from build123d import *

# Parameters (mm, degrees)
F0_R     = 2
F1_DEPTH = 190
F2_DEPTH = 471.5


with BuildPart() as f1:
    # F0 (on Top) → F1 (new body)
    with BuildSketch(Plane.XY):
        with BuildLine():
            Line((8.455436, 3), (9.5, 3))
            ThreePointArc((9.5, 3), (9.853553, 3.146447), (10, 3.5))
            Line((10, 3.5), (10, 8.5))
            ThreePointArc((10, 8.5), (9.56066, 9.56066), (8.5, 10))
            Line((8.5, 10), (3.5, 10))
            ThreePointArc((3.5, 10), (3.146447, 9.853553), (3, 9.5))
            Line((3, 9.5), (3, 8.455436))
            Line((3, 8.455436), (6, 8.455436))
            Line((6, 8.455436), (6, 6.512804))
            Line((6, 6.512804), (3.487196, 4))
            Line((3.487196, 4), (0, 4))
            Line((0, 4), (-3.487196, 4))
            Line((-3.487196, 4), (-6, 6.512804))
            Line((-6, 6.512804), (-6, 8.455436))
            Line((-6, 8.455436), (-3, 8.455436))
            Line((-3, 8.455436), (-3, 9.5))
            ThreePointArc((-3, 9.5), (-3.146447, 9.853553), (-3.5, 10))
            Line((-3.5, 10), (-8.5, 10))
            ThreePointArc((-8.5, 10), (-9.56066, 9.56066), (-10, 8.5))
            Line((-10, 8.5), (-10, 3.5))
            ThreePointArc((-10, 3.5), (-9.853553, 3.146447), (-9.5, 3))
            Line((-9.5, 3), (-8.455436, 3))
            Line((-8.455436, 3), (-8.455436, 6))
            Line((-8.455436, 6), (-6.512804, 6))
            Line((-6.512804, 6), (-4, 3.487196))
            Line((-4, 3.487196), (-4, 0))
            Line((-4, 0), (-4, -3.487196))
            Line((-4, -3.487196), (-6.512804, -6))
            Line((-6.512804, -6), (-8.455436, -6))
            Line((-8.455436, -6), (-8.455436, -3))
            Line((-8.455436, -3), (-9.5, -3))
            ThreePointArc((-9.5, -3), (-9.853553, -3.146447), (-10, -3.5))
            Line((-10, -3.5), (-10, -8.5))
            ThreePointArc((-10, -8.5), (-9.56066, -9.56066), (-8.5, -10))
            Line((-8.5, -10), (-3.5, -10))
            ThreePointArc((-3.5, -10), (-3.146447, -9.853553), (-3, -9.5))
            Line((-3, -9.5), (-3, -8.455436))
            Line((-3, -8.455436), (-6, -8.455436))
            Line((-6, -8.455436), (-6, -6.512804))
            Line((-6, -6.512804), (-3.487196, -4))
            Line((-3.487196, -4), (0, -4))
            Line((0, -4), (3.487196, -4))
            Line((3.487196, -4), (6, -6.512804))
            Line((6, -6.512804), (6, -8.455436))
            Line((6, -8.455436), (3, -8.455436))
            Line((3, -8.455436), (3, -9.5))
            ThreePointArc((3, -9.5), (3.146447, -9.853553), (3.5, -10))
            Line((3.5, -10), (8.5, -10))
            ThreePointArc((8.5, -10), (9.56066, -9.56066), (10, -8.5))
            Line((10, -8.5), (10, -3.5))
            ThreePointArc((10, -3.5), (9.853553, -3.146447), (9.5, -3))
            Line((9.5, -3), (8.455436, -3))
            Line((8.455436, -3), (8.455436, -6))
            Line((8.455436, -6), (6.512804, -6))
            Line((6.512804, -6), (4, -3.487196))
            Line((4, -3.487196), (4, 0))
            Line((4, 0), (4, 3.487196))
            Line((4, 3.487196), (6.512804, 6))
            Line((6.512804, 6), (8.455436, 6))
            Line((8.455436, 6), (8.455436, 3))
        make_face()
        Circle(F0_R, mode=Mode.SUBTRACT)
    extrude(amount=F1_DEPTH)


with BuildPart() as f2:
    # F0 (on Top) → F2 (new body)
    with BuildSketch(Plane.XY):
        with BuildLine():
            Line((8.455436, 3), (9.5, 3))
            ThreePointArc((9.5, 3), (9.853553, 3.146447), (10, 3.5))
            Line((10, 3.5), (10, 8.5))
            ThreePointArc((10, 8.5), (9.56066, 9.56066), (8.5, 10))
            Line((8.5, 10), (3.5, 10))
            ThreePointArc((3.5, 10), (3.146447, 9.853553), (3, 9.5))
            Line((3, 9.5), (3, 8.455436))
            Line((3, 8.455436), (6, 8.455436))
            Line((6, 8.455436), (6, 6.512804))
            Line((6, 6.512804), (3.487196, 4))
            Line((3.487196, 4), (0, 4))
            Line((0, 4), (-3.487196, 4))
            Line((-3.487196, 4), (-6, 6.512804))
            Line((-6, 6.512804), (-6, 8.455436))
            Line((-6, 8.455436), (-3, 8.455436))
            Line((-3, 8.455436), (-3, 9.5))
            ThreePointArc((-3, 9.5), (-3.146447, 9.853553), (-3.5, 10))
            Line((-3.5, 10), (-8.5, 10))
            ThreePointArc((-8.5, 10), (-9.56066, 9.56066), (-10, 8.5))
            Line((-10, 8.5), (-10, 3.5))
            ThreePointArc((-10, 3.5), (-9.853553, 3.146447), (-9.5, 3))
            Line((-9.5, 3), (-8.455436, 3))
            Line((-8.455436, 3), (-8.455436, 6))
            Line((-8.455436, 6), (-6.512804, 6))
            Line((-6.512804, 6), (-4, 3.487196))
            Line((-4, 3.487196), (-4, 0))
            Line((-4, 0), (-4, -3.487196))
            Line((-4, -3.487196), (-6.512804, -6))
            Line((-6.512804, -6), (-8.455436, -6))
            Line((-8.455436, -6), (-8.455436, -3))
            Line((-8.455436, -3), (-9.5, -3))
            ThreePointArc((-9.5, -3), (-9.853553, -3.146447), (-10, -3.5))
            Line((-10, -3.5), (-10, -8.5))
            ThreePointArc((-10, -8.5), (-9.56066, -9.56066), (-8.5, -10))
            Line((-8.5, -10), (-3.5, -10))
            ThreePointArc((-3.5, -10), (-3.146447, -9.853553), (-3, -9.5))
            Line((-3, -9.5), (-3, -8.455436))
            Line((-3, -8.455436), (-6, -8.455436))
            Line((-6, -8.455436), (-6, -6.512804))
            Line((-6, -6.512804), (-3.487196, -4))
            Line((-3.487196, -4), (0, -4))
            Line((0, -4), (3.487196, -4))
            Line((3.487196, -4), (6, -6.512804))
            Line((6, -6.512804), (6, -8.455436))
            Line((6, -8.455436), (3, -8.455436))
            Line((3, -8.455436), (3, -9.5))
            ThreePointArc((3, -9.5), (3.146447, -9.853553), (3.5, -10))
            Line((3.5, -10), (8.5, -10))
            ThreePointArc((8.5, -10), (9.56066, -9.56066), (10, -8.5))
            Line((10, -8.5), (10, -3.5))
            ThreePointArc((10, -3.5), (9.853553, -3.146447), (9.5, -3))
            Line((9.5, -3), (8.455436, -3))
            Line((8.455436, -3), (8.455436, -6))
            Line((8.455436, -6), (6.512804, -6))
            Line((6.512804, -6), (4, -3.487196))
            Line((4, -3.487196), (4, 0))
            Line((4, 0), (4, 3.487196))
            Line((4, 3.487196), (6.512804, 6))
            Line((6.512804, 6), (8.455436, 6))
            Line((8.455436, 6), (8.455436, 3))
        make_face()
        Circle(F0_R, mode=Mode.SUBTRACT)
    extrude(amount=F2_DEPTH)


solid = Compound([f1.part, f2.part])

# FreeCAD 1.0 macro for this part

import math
import FreeCAD as App
import Part
import Sketcher
from FreeCAD import Vector

doc = App.newDocument("Part")
body = doc.addObject("PartDesign::Body", "Body")

sketch1 = body.newObject("Sketcher::SketchObject", "Sketch")
sketch1.AttachmentSupport = (doc.getObject("XY_Plane"), [""])
sketch1.MapMode = "FlatFace"
sketch1.addGeometry(Part.LineSegment(Vector(8.5, 3, 0), Vector(9.5, 3, 0)), False)
sketch1.addGeometry(Part.ArcOfCircle(Part.Circle(Vector(9.5, 3.5, 0), Vector(0, 0, 1), 0.5), math.radians(-90), math.radians(0)), False)
sketch1.addGeometry(Part.LineSegment(Vector(10, 3.5, 0), Vector(10, 8.5, 0)), False)
sketch1.addGeometry(Part.ArcOfCircle(Part.Circle(Vector(8.5, 8.5, 0), Vector(0, 0, 1), 1.5), math.radians(0), math.radians(90)), False)
sketch1.addGeometry(Part.LineSegment(Vector(8.5, 10, 0), Vector(3.5, 10, 0)), False)
sketch1.addGeometry(Part.ArcOfCircle(Part.Circle(Vector(3.5, 9.5, 0), Vector(0, 0, 1), 0.5), math.radians(90), math.radians(180)), False)
sketch1.addGeometry(Part.LineSegment(Vector(3, 9.5, 0), Vector(3, 8.5, 0)), False)
sketch1.addGeometry(Part.LineSegment(Vector(3, 8.5, 0), Vector(6, 8.5, 0)), False)
sketch1.addGeometry(Part.LineSegment(Vector(6, 8.5, 0), Vector(6, 6.5, 0)), False)
sketch1.addGeometry(Part.LineSegment(Vector(6, 6.5, 0), Vector(3.5, 4, 0)), False)
sketch1.addGeometry(Part.LineSegment(Vector(3.5, 4, 0), Vector(-3.5, 4, 0)), False)
sketch1.addGeometry(Part.LineSegment(Vector(-3.5, 4, 0), Vector(-6, 6.5, 0)), False)
sketch1.addGeometry(Part.LineSegment(Vector(-6, 6.5, 0), Vector(-6, 8.5, 0)), False)
sketch1.addGeometry(Part.LineSegment(Vector(-6, 8.5, 0), Vector(-3, 8.5, 0)), False)
sketch1.addGeometry(Part.LineSegment(Vector(-3, 8.5, 0), Vector(-3, 9.5, 0)), False)
sketch1.addGeometry(Part.ArcOfCircle(Part.Circle(Vector(-3.5, 9.5, 0), Vector(0, 0, 1), 0.5), math.radians(0), math.radians(90)), False)
sketch1.addGeometry(Part.LineSegment(Vector(-3.5, 10, 0), Vector(-8.5, 10, 0)), False)
sketch1.addGeometry(Part.ArcOfCircle(Part.Circle(Vector(-8.5, 8.5, 0), Vector(0, 0, 1), 1.5), math.radians(90), math.radians(180)), False)
sketch1.addGeometry(Part.LineSegment(Vector(-10, 8.5, 0), Vector(-10, 3.5, 0)), False)
sketch1.addGeometry(Part.ArcOfCircle(Part.Circle(Vector(-9.5, 3.5, 0), Vector(0, 0, 1), 0.5), math.radians(-180), math.radians(-90)), False)
sketch1.addGeometry(Part.LineSegment(Vector(-9.5, 3, 0), Vector(-8.5, 3, 0)), False)
sketch1.addGeometry(Part.LineSegment(Vector(-8.5, 3, 0), Vector(-8.5, 6, 0)), False)
sketch1.addGeometry(Part.LineSegment(Vector(-8.5, 6, 0), Vector(-6.5, 6, 0)), False)
sketch1.addGeometry(Part.LineSegment(Vector(-6.5, 6, 0), Vector(-4, 3.5, 0)), False)
sketch1.addGeometry(Part.LineSegment(Vector(-4, 3.5, 0), Vector(-4, -3.5, 0)), False)
sketch1.addGeometry(Part.LineSegment(Vector(-4, -3.5, 0), Vector(-6.5, -6, 0)), False)
sketch1.addGeometry(Part.LineSegment(Vector(-6.5, -6, 0), Vector(-8.5, -6, 0)), False)
sketch1.addGeometry(Part.LineSegment(Vector(-8.5, -6, 0), Vector(-8.5, -3, 0)), False)
sketch1.addGeometry(Part.LineSegment(Vector(-8.5, -3, 0), Vector(-9.5, -3, 0)), False)
sketch1.addGeometry(Part.ArcOfCircle(Part.Circle(Vector(-9.5, -3.5, 0), Vector(0, 0, 1), 0.5), math.radians(90), math.radians(180)), False)
sketch1.addGeometry(Part.LineSegment(Vector(-10, -3.5, 0), Vector(-10, -8.5, 0)), False)
sketch1.addGeometry(Part.ArcOfCircle(Part.Circle(Vector(-8.5, -8.5, 0), Vector(0, 0, 1), 1.5), math.radians(-180), math.radians(-90)), False)
sketch1.addGeometry(Part.LineSegment(Vector(-8.5, -10, 0), Vector(-3.5, -10, 0)), False)
sketch1.addGeometry(Part.ArcOfCircle(Part.Circle(Vector(-3.5, -9.5, 0), Vector(0, 0, 1), 0.5), math.radians(-90), math.radians(0)), False)
sketch1.addGeometry(Part.LineSegment(Vector(-3, -9.5, 0), Vector(-3, -8.5, 0)), False)
sketch1.addGeometry(Part.LineSegment(Vector(-3, -8.5, 0), Vector(-6, -8.5, 0)), False)
sketch1.addGeometry(Part.LineSegment(Vector(-6, -8.5, 0), Vector(-6, -6.5, 0)), False)
sketch1.addGeometry(Part.LineSegment(Vector(-6, -6.5, 0), Vector(-3.5, -4, 0)), False)
sketch1.addGeometry(Part.LineSegment(Vector(-3.5, -4, 0), Vector(3.5, -4, 0)), False)
sketch1.addGeometry(Part.LineSegment(Vector(3.5, -4, 0), Vector(6, -6.5, 0)), False)
sketch1.addGeometry(Part.LineSegment(Vector(6, -6.5, 0), Vector(6, -8.5, 0)), False)
sketch1.addGeometry(Part.LineSegment(Vector(6, -8.5, 0), Vector(3, -8.5, 0)), False)
sketch1.addGeometry(Part.LineSegment(Vector(3, -8.5, 0), Vector(3, -9.5, 0)), False)
sketch1.addGeometry(Part.ArcOfCircle(Part.Circle(Vector(3.5, -9.5, 0), Vector(0, 0, 1), 0.5), math.radians(-180), math.radians(-90)), False)
sketch1.addGeometry(Part.LineSegment(Vector(3.5, -10, 0), Vector(8.5, -10, 0)), False)
sketch1.addGeometry(Part.ArcOfCircle(Part.Circle(Vector(8.5, -8.5, 0), Vector(0, 0, 1), 1.5), math.radians(-90), math.radians(0)), False)
sketch1.addGeometry(Part.LineSegment(Vector(10, -8.5, 0), Vector(10, -3.5, 0)), False)
sketch1.addGeometry(Part.ArcOfCircle(Part.Circle(Vector(9.5, -3.5, 0), Vector(0, 0, 1), 0.5), math.radians(0), math.radians(90)), False)
sketch1.addGeometry(Part.LineSegment(Vector(9.5, -3, 0), Vector(8.5, -3, 0)), False)
sketch1.addGeometry(Part.LineSegment(Vector(8.5, -3, 0), Vector(8.5, -6, 0)), False)
sketch1.addGeometry(Part.LineSegment(Vector(8.5, -6, 0), Vector(6.5, -6, 0)), False)
sketch1.addGeometry(Part.LineSegment(Vector(6.5, -6, 0), Vector(4, -3.5, 0)), False)
sketch1.addGeometry(Part.LineSegment(Vector(4, -3.5, 0), Vector(4, 3.5, 0)), False)
sketch1.addGeometry(Part.LineSegment(Vector(4, 3.5, 0), Vector(6.5, 6, 0)), False)
sketch1.addGeometry(Part.LineSegment(Vector(6.5, 6, 0), Vector(8.5, 6, 0)), False)
sketch1.addGeometry(Part.LineSegment(Vector(8.5, 6, 0), Vector(8.5, 3, 0)), False)
sketch1.addGeometry(Part.Circle(Vector(0, 0, 0), Vector(0, 0, 1), 2), False)
sketch1.addConstraint(Sketcher.Constraint("Coincident", 0, 2, 1, 1))
sketch1.addConstraint(Sketcher.Constraint("Coincident", 1, 2, 2, 1))
sketch1.addConstraint(Sketcher.Constraint("Tangent", 2, 2, 3, 1))
sketch1.addConstraint(Sketcher.Constraint("Tangent", 3, 2, 4, 1))
sketch1.addConstraint(Sketcher.Constraint("Coincident", 4, 2, 5, 1))
sketch1.addConstraint(Sketcher.Constraint("Coincident", 5, 2, 6, 1))
sketch1.addConstraint(Sketcher.Constraint("Coincident", 6, 2, 7, 1))
sketch1.addConstraint(Sketcher.Constraint("Coincident", 7, 2, 8, 1))
sketch1.addConstraint(Sketcher.Constraint("Coincident", 8, 2, 9, 1))
sketch1.addConstraint(Sketcher.Constraint("Coincident", 9, 2, 10, 1))
sketch1.addConstraint(Sketcher.Constraint("Coincident", 10, 2, 11, 1))
sketch1.addConstraint(Sketcher.Constraint("Coincident", 11, 2, 12, 1))
sketch1.addConstraint(Sketcher.Constraint("Coincident", 12, 2, 13, 1))
sketch1.addConstraint(Sketcher.Constraint("Coincident", 13, 2, 14, 1))
sketch1.addConstraint(Sketcher.Constraint("Coincident", 14, 2, 15, 1))
sketch1.addConstraint(Sketcher.Constraint("Coincident", 15, 2, 16, 1))
sketch1.addConstraint(Sketcher.Constraint("Tangent", 16, 2, 17, 1))
sketch1.addConstraint(Sketcher.Constraint("Tangent", 17, 2, 18, 1))
sketch1.addConstraint(Sketcher.Constraint("Coincident", 18, 2, 19, 1))
sketch1.addConstraint(Sketcher.Constraint("Coincident", 19, 2, 20, 1))
sketch1.addConstraint(Sketcher.Constraint("Coincident", 20, 2, 21, 1))
sketch1.addConstraint(Sketcher.Constraint("Coincident", 21, 2, 22, 1))
sketch1.addConstraint(Sketcher.Constraint("Coincident", 22, 2, 23, 1))
sketch1.addConstraint(Sketcher.Constraint("Coincident", 23, 2, 24, 1))
sketch1.addConstraint(Sketcher.Constraint("Coincident", 24, 2, 25, 1))
sketch1.addConstraint(Sketcher.Constraint("Coincident", 25, 2, 26, 1))
sketch1.addConstraint(Sketcher.Constraint("Coincident", 26, 2, 27, 1))
sketch1.addConstraint(Sketcher.Constraint("Coincident", 27, 2, 28, 1))
sketch1.addConstraint(Sketcher.Constraint("Coincident", 28, 2, 29, 1))
sketch1.addConstraint(Sketcher.Constraint("Coincident", 29, 2, 30, 1))
sketch1.addConstraint(Sketcher.Constraint("Tangent", 30, 2, 31, 1))
sketch1.addConstraint(Sketcher.Constraint("Tangent", 31, 2, 32, 1))
sketch1.addConstraint(Sketcher.Constraint("Coincident", 32, 2, 33, 1))
sketch1.addConstraint(Sketcher.Constraint("Coincident", 33, 2, 34, 1))
sketch1.addConstraint(Sketcher.Constraint("Coincident", 34, 2, 35, 1))
sketch1.addConstraint(Sketcher.Constraint("Coincident", 35, 2, 36, 1))
sketch1.addConstraint(Sketcher.Constraint("Coincident", 36, 2, 37, 1))
sketch1.addConstraint(Sketcher.Constraint("Coincident", 37, 2, 38, 1))
sketch1.addConstraint(Sketcher.Constraint("Coincident", 38, 2, 39, 1))
sketch1.addConstraint(Sketcher.Constraint("Coincident", 39, 2, 40, 1))
sketch1.addConstraint(Sketcher.Constraint("Coincident", 40, 2, 41, 1))
sketch1.addConstraint(Sketcher.Constraint("Coincident", 41, 2, 42, 1))
sketch1.addConstraint(Sketcher.Constraint("Coincident", 42, 2, 43, 1))
sketch1.addConstraint(Sketcher.Constraint("Coincident", 43, 2, 44, 1))
sketch1.addConstraint(Sketcher.Constraint("Tangent", 44, 2, 45, 1))
sketch1.addConstraint(Sketcher.Constraint("Tangent", 45, 2, 46, 1))
sketch1.addConstraint(Sketcher.Constraint("Coincident", 46, 2, 47, 1))
sketch1.addConstraint(Sketcher.Constraint("Coincident", 47, 2, 48, 1))
sketch1.addConstraint(Sketcher.Constraint("Coincident", 48, 2, 49, 1))
sketch1.addConstraint(Sketcher.Constraint("Coincident", 49, 2, 50, 1))
sketch1.addConstraint(Sketcher.Constraint("Coincident", 50, 2, 51, 1))
sketch1.addConstraint(Sketcher.Constraint("Coincident", 51, 2, 52, 1))
sketch1.addConstraint(Sketcher.Constraint("Coincident", 52, 2, 53, 1))
sketch1.addConstraint(Sketcher.Constraint("Coincident", 53, 2, 54, 1))
sketch1.addConstraint(Sketcher.Constraint("Coincident", 54, 2, 55, 1))
sketch1.addConstraint(Sketcher.Constraint("Coincident", 55, 2, 0, 1))
sketch1.addConstraint(Sketcher.Constraint("Horizontal", 0))
sketch1.addConstraint(Sketcher.Constraint("Vertical", 2))
sketch1.addConstraint(Sketcher.Constraint("Horizontal", 4))
sketch1.addConstraint(Sketcher.Constraint("Vertical", 6))
sketch1.addConstraint(Sketcher.Constraint("Horizontal", 7))
sketch1.addConstraint(Sketcher.Constraint("Vertical", 8))
sketch1.addConstraint(Sketcher.Constraint("Horizontal", 10))
sketch1.addConstraint(Sketcher.Constraint("Vertical", 12))
sketch1.addConstraint(Sketcher.Constraint("Horizontal", 13))
sketch1.addConstraint(Sketcher.Constraint("Vertical", 14))
sketch1.addConstraint(Sketcher.Constraint("Horizontal", 16))
sketch1.addConstraint(Sketcher.Constraint("Vertical", 18))
sketch1.addConstraint(Sketcher.Constraint("Horizontal", 20))
sketch1.addConstraint(Sketcher.Constraint("Vertical", 21))
sketch1.addConstraint(Sketcher.Constraint("Horizontal", 22))
sketch1.addConstraint(Sketcher.Constraint("Vertical", 24))
sketch1.addConstraint(Sketcher.Constraint("Horizontal", 26))
sketch1.addConstraint(Sketcher.Constraint("Vertical", 27))
sketch1.addConstraint(Sketcher.Constraint("Horizontal", 28))
sketch1.addConstraint(Sketcher.Constraint("Vertical", 30))
sketch1.addConstraint(Sketcher.Constraint("Horizontal", 32))
sketch1.addConstraint(Sketcher.Constraint("Vertical", 34))
sketch1.addConstraint(Sketcher.Constraint("Horizontal", 35))
sketch1.addConstraint(Sketcher.Constraint("Vertical", 36))
sketch1.addConstraint(Sketcher.Constraint("Horizontal", 38))
sketch1.addConstraint(Sketcher.Constraint("Vertical", 40))
sketch1.addConstraint(Sketcher.Constraint("Horizontal", 41))
sketch1.addConstraint(Sketcher.Constraint("Vertical", 42))
sketch1.addConstraint(Sketcher.Constraint("Horizontal", 44))
sketch1.addConstraint(Sketcher.Constraint("Vertical", 46))
sketch1.addConstraint(Sketcher.Constraint("Horizontal", 48))
sketch1.addConstraint(Sketcher.Constraint("Vertical", 49))
sketch1.addConstraint(Sketcher.Constraint("Horizontal", 50))
sketch1.addConstraint(Sketcher.Constraint("Vertical", 52))
sketch1.addConstraint(Sketcher.Constraint("Horizontal", 54))
sketch1.addConstraint(Sketcher.Constraint("Vertical", 55))
sketch1.addConstraint(Sketcher.Constraint("Coincident", 56, 3, -1, 1))
sketch1.addConstraint(Sketcher.Constraint("Equal", 1, 5))
sketch1.addConstraint(Sketcher.Constraint("Equal", 5, 15))
sketch1.addConstraint(Sketcher.Constraint("Equal", 3, 17))
sketch1.addConstraint(Sketcher.Constraint("Equal", 15, 19))
sketch1.addConstraint(Sketcher.Constraint("Equal", 19, 29))
sketch1.addConstraint(Sketcher.Constraint("Equal", 17, 31))
sketch1.addConstraint(Sketcher.Constraint("Equal", 29, 33))
sketch1.addConstraint(Sketcher.Constraint("Equal", 33, 43))
sketch1.addConstraint(Sketcher.Constraint("Equal", 31, 45))
sketch1.addConstraint(Sketcher.Constraint("Equal", 43, 47))
sketch1.addConstraint(Sketcher.Constraint("Symmetric", 1, 3, 29, 3, -1, 1))
sketch1.addConstraint(Sketcher.Constraint("Symmetric", 5, 3, 33, 3, -1, 1))
sketch1.addConstraint(Sketcher.Constraint("Symmetric", 15, 3, 43, 3, -1, 1))
sketch1.addConstraint(Sketcher.Constraint("Symmetric", 19, 3, 47, 3, -1, 1))
sketch1.addConstraint(Sketcher.Constraint("Symmetric", 7, 2, 35, 2, -1, 1))
sketch1.addConstraint(Sketcher.Constraint("Symmetric", 9, 2, 37, 2, -1, 1))
sketch1.addConstraint(Sketcher.Constraint("Symmetric", 11, 2, 39, 2, -1, 1))
sketch1.addConstraint(Sketcher.Constraint("Symmetric", 21, 2, 49, 2, -1, 1))
sketch1.addConstraint(Sketcher.Constraint("Symmetric", 23, 2, 51, 2, -1, 1))
sketch1.addConstraint(Sketcher.Constraint("Symmetric", 25, 2, 53, 2, -1, 1))
sketch1.addConstraint(Sketcher.Constraint("Symmetric", 5, 3, 15, 3, -2))
sketch1.addConstraint(Sketcher.Constraint("Symmetric", 1, 3, 19, 3, -2))
sketch1.addConstraint(Sketcher.Constraint("Symmetric", 8, 2, 11, 2, -2))
sketch1.addConstraint(Sketcher.Constraint("Symmetric", 26, 2, 49, 2, -2))
sketch1.addConstraint(Sketcher.Constraint("Perpendicular", 9, 11))
sketch1.addConstraint(Sketcher.Constraint("Parallel", 11, 23))
sketch1.addConstraint(Sketcher.Constraint("Perpendicular", 23, 25))
sketch1.addConstraint(Sketcher.Constraint("Parallel", 25, 37))
sketch1.addConstraint(Sketcher.Constraint("Perpendicular", 37, 39))
sketch1.addConstraint(Sketcher.Constraint("Parallel", 39, 51))
sketch1.addConstraint(Sketcher.Constraint("Perpendicular", 51, 53))
sketch1.addConstraint(Sketcher.Constraint("Horizontal", 19, 3, 1, 2))
sketch1.addConstraint(Sketcher.Constraint("Horizontal", 15, 3, 5, 2))
sketch1.addConstraint(Sketcher.Constraint("Horizontal", 7, 2, 12, 2))
sketch1.addConstraint(Sketcher.Constraint("Horizontal", 5, 2, 14, 2))
sketch1.addConstraint(Sketcher.Constraint("Horizontal", 1, 2, 18, 2))
sketch1.addConstraint(Sketcher.Constraint("Horizontal", 47, 3, 29, 2))
sketch1.addConstraint(Sketcher.Constraint("Horizontal", 43, 3, 33, 2))
sketch1.addConstraint(Sketcher.Constraint("Horizontal", 35, 2, 40, 2))
sketch1.addConstraint(Sketcher.Constraint("Horizontal", 33, 2, 42, 2))
sketch1.addConstraint(Sketcher.Constraint("Horizontal", 29, 2, 46, 2))
sketch1.addConstraint(Sketcher.Constraint("Horizontal", 24, 2, 51, 2))
sketch1.addConstraint(Sketcher.Constraint("Vertical", 47, 3, 0, 2))
sketch1.addConstraint(Sketcher.Constraint("Vertical", 43, 3, 4, 2))
sketch1.addConstraint(Sketcher.Constraint("Vertical", 33, 3, 15, 2))
sketch1.addConstraint(Sketcher.Constraint("Vertical", 29, 3, 19, 2))
sketch1.addConstraint(Sketcher.Constraint("Vertical", 22, 2, 25, 2))
sketch1.addConstraint(Sketcher.Constraint("Vertical", 19, 2, 28, 2))
sketch1.addConstraint(Sketcher.Constraint("Vertical", 15, 2, 32, 2))
sketch1.addConstraint(Sketcher.Constraint("Vertical", 4, 2, 43, 2))
sketch1.addConstraint(Sketcher.Constraint("Vertical", 0, 2, 47, 2))
sketch1.addConstraint(Sketcher.Constraint("Vertical", 49, 2, 54, 2))
sketch1.addConstraint(Sketcher.Constraint("Equal", 44, 2))
sketch1.addConstraint(Sketcher.Constraint("Equal", 48, 6))
sketch1.addConstraint(Sketcher.Constraint("Equal", 54, 8))
sketch1.addConstraint(Sketcher.Constraint("Equal", 41, 21))
sketch1.addConstraint(Sketcher.Constraint("Equal", 38, 24))
sketch1.addConstraint(Sketcher.Constraint("Equal", 11, 23))
sketch1.addConstraint(Sketcher.Constraint("Diameter", 56, 4.0))
sketch1.addConstraint(Sketcher.Constraint("Radius", 1, 0.500001))
sketch1.addConstraint(Sketcher.Constraint("Radius", 3, 1.500001))
sketch1.addConstraint(Sketcher.Constraint("DistanceX", 4, 2, 4, 1, 5.0))
sketch1.addConstraint(Sketcher.Constraint("DistanceX", 7, 1, 7, 2, 3.0))
sketch1.addConstraint(Sketcher.Constraint("DistanceY", -1, 1, 0, 2, 3.0))
sketch1.addConstraint(Sketcher.Constraint("DistanceY", -1, 1, 9, 2, 4.0))
sketch1.addConstraint(Sketcher.Constraint("Distance", 9, 3.553641))
sketch1.addConstraint(Sketcher.Constraint("DistanceX", 0, 1, 0, 2, 1.044564))
pad1 = body.newObject("PartDesign::Pad", "Pad")
pad1.Profile = sketch1
pad1.Length = 190
body2 = doc.addObject("PartDesign::Body", "Body001")

sketch2 = body2.newObject("Sketcher::SketchObject", "Sketch001")
sketch2.AttachmentSupport = (doc.getObject("XY_Plane001"), [""])
sketch2.MapMode = "FlatFace"
sketch2.addGeometry(Part.LineSegment(Vector(8.5, 3, 0), Vector(9.5, 3, 0)), False)
sketch2.addGeometry(Part.ArcOfCircle(Part.Circle(Vector(9.5, 3.5, 0), Vector(0, 0, 1), 0.5), math.radians(-90), math.radians(0)), False)
sketch2.addGeometry(Part.LineSegment(Vector(10, 3.5, 0), Vector(10, 8.5, 0)), False)
sketch2.addGeometry(Part.ArcOfCircle(Part.Circle(Vector(8.5, 8.5, 0), Vector(0, 0, 1), 1.5), math.radians(0), math.radians(90)), False)
sketch2.addGeometry(Part.LineSegment(Vector(8.5, 10, 0), Vector(3.5, 10, 0)), False)
sketch2.addGeometry(Part.ArcOfCircle(Part.Circle(Vector(3.5, 9.5, 0), Vector(0, 0, 1), 0.5), math.radians(90), math.radians(180)), False)
sketch2.addGeometry(Part.LineSegment(Vector(3, 9.5, 0), Vector(3, 8.5, 0)), False)
sketch2.addGeometry(Part.LineSegment(Vector(3, 8.5, 0), Vector(6, 8.5, 0)), False)
sketch2.addGeometry(Part.LineSegment(Vector(6, 8.5, 0), Vector(6, 6.5, 0)), False)
sketch2.addGeometry(Part.LineSegment(Vector(6, 6.5, 0), Vector(3.5, 4, 0)), False)
sketch2.addGeometry(Part.LineSegment(Vector(3.5, 4, 0), Vector(-3.5, 4, 0)), False)
sketch2.addGeometry(Part.LineSegment(Vector(-3.5, 4, 0), Vector(-6, 6.5, 0)), False)
sketch2.addGeometry(Part.LineSegment(Vector(-6, 6.5, 0), Vector(-6, 8.5, 0)), False)
sketch2.addGeometry(Part.LineSegment(Vector(-6, 8.5, 0), Vector(-3, 8.5, 0)), False)
sketch2.addGeometry(Part.LineSegment(Vector(-3, 8.5, 0), Vector(-3, 9.5, 0)), False)
sketch2.addGeometry(Part.ArcOfCircle(Part.Circle(Vector(-3.5, 9.5, 0), Vector(0, 0, 1), 0.5), math.radians(0), math.radians(90)), False)
sketch2.addGeometry(Part.LineSegment(Vector(-3.5, 10, 0), Vector(-8.5, 10, 0)), False)
sketch2.addGeometry(Part.ArcOfCircle(Part.Circle(Vector(-8.5, 8.5, 0), Vector(0, 0, 1), 1.5), math.radians(90), math.radians(180)), False)
sketch2.addGeometry(Part.LineSegment(Vector(-10, 8.5, 0), Vector(-10, 3.5, 0)), False)
sketch2.addGeometry(Part.ArcOfCircle(Part.Circle(Vector(-9.5, 3.5, 0), Vector(0, 0, 1), 0.5), math.radians(-180), math.radians(-90)), False)
sketch2.addGeometry(Part.LineSegment(Vector(-9.5, 3, 0), Vector(-8.5, 3, 0)), False)
sketch2.addGeometry(Part.LineSegment(Vector(-8.5, 3, 0), Vector(-8.5, 6, 0)), False)
sketch2.addGeometry(Part.LineSegment(Vector(-8.5, 6, 0), Vector(-6.5, 6, 0)), False)
sketch2.addGeometry(Part.LineSegment(Vector(-6.5, 6, 0), Vector(-4, 3.5, 0)), False)
sketch2.addGeometry(Part.LineSegment(Vector(-4, 3.5, 0), Vector(-4, -3.5, 0)), False)
sketch2.addGeometry(Part.LineSegment(Vector(-4, -3.5, 0), Vector(-6.5, -6, 0)), False)
sketch2.addGeometry(Part.LineSegment(Vector(-6.5, -6, 0), Vector(-8.5, -6, 0)), False)
sketch2.addGeometry(Part.LineSegment(Vector(-8.5, -6, 0), Vector(-8.5, -3, 0)), False)
sketch2.addGeometry(Part.LineSegment(Vector(-8.5, -3, 0), Vector(-9.5, -3, 0)), False)
sketch2.addGeometry(Part.ArcOfCircle(Part.Circle(Vector(-9.5, -3.5, 0), Vector(0, 0, 1), 0.5), math.radians(90), math.radians(180)), False)
sketch2.addGeometry(Part.LineSegment(Vector(-10, -3.5, 0), Vector(-10, -8.5, 0)), False)
sketch2.addGeometry(Part.ArcOfCircle(Part.Circle(Vector(-8.5, -8.5, 0), Vector(0, 0, 1), 1.5), math.radians(-180), math.radians(-90)), False)
sketch2.addGeometry(Part.LineSegment(Vector(-8.5, -10, 0), Vector(-3.5, -10, 0)), False)
sketch2.addGeometry(Part.ArcOfCircle(Part.Circle(Vector(-3.5, -9.5, 0), Vector(0, 0, 1), 0.5), math.radians(-90), math.radians(0)), False)
sketch2.addGeometry(Part.LineSegment(Vector(-3, -9.5, 0), Vector(-3, -8.5, 0)), False)
sketch2.addGeometry(Part.LineSegment(Vector(-3, -8.5, 0), Vector(-6, -8.5, 0)), False)
sketch2.addGeometry(Part.LineSegment(Vector(-6, -8.5, 0), Vector(-6, -6.5, 0)), False)
sketch2.addGeometry(Part.LineSegment(Vector(-6, -6.5, 0), Vector(-3.5, -4, 0)), False)
sketch2.addGeometry(Part.LineSegment(Vector(-3.5, -4, 0), Vector(3.5, -4, 0)), False)
sketch2.addGeometry(Part.LineSegment(Vector(3.5, -4, 0), Vector(6, -6.5, 0)), False)
sketch2.addGeometry(Part.LineSegment(Vector(6, -6.5, 0), Vector(6, -8.5, 0)), False)
sketch2.addGeometry(Part.LineSegment(Vector(6, -8.5, 0), Vector(3, -8.5, 0)), False)
sketch2.addGeometry(Part.LineSegment(Vector(3, -8.5, 0), Vector(3, -9.5, 0)), False)
sketch2.addGeometry(Part.ArcOfCircle(Part.Circle(Vector(3.5, -9.5, 0), Vector(0, 0, 1), 0.5), math.radians(-180), math.radians(-90)), False)
sketch2.addGeometry(Part.LineSegment(Vector(3.5, -10, 0), Vector(8.5, -10, 0)), False)
sketch2.addGeometry(Part.ArcOfCircle(Part.Circle(Vector(8.5, -8.5, 0), Vector(0, 0, 1), 1.5), math.radians(-90), math.radians(0)), False)
sketch2.addGeometry(Part.LineSegment(Vector(10, -8.5, 0), Vector(10, -3.5, 0)), False)
sketch2.addGeometry(Part.ArcOfCircle(Part.Circle(Vector(9.5, -3.5, 0), Vector(0, 0, 1), 0.5), math.radians(0), math.radians(90)), False)
sketch2.addGeometry(Part.LineSegment(Vector(9.5, -3, 0), Vector(8.5, -3, 0)), False)
sketch2.addGeometry(Part.LineSegment(Vector(8.5, -3, 0), Vector(8.5, -6, 0)), False)
sketch2.addGeometry(Part.LineSegment(Vector(8.5, -6, 0), Vector(6.5, -6, 0)), False)
sketch2.addGeometry(Part.LineSegment(Vector(6.5, -6, 0), Vector(4, -3.5, 0)), False)
sketch2.addGeometry(Part.LineSegment(Vector(4, -3.5, 0), Vector(4, 3.5, 0)), False)
sketch2.addGeometry(Part.LineSegment(Vector(4, 3.5, 0), Vector(6.5, 6, 0)), False)
sketch2.addGeometry(Part.LineSegment(Vector(6.5, 6, 0), Vector(8.5, 6, 0)), False)
sketch2.addGeometry(Part.LineSegment(Vector(8.5, 6, 0), Vector(8.5, 3, 0)), False)
sketch2.addGeometry(Part.Circle(Vector(0, 0, 0), Vector(0, 0, 1), 2), False)
sketch2.addConstraint(Sketcher.Constraint("Coincident", 0, 2, 1, 1))
sketch2.addConstraint(Sketcher.Constraint("Coincident", 1, 2, 2, 1))
sketch2.addConstraint(Sketcher.Constraint("Tangent", 2, 2, 3, 1))
sketch2.addConstraint(Sketcher.Constraint("Tangent", 3, 2, 4, 1))
sketch2.addConstraint(Sketcher.Constraint("Coincident", 4, 2, 5, 1))
sketch2.addConstraint(Sketcher.Constraint("Coincident", 5, 2, 6, 1))
sketch2.addConstraint(Sketcher.Constraint("Coincident", 6, 2, 7, 1))
sketch2.addConstraint(Sketcher.Constraint("Coincident", 7, 2, 8, 1))
sketch2.addConstraint(Sketcher.Constraint("Coincident", 8, 2, 9, 1))
sketch2.addConstraint(Sketcher.Constraint("Coincident", 9, 2, 10, 1))
sketch2.addConstraint(Sketcher.Constraint("Coincident", 10, 2, 11, 1))
sketch2.addConstraint(Sketcher.Constraint("Coincident", 11, 2, 12, 1))
sketch2.addConstraint(Sketcher.Constraint("Coincident", 12, 2, 13, 1))
sketch2.addConstraint(Sketcher.Constraint("Coincident", 13, 2, 14, 1))
sketch2.addConstraint(Sketcher.Constraint("Coincident", 14, 2, 15, 1))
sketch2.addConstraint(Sketcher.Constraint("Coincident", 15, 2, 16, 1))
sketch2.addConstraint(Sketcher.Constraint("Tangent", 16, 2, 17, 1))
sketch2.addConstraint(Sketcher.Constraint("Tangent", 17, 2, 18, 1))
sketch2.addConstraint(Sketcher.Constraint("Coincident", 18, 2, 19, 1))
sketch2.addConstraint(Sketcher.Constraint("Coincident", 19, 2, 20, 1))
sketch2.addConstraint(Sketcher.Constraint("Coincident", 20, 2, 21, 1))
sketch2.addConstraint(Sketcher.Constraint("Coincident", 21, 2, 22, 1))
sketch2.addConstraint(Sketcher.Constraint("Coincident", 22, 2, 23, 1))
sketch2.addConstraint(Sketcher.Constraint("Coincident", 23, 2, 24, 1))
sketch2.addConstraint(Sketcher.Constraint("Coincident", 24, 2, 25, 1))
sketch2.addConstraint(Sketcher.Constraint("Coincident", 25, 2, 26, 1))
sketch2.addConstraint(Sketcher.Constraint("Coincident", 26, 2, 27, 1))
sketch2.addConstraint(Sketcher.Constraint("Coincident", 27, 2, 28, 1))
sketch2.addConstraint(Sketcher.Constraint("Coincident", 28, 2, 29, 1))
sketch2.addConstraint(Sketcher.Constraint("Coincident", 29, 2, 30, 1))
sketch2.addConstraint(Sketcher.Constraint("Tangent", 30, 2, 31, 1))
sketch2.addConstraint(Sketcher.Constraint("Tangent", 31, 2, 32, 1))
sketch2.addConstraint(Sketcher.Constraint("Coincident", 32, 2, 33, 1))
sketch2.addConstraint(Sketcher.Constraint("Coincident", 33, 2, 34, 1))
sketch2.addConstraint(Sketcher.Constraint("Coincident", 34, 2, 35, 1))
sketch2.addConstraint(Sketcher.Constraint("Coincident", 35, 2, 36, 1))
sketch2.addConstraint(Sketcher.Constraint("Coincident", 36, 2, 37, 1))
sketch2.addConstraint(Sketcher.Constraint("Coincident", 37, 2, 38, 1))
sketch2.addConstraint(Sketcher.Constraint("Coincident", 38, 2, 39, 1))
sketch2.addConstraint(Sketcher.Constraint("Coincident", 39, 2, 40, 1))
sketch2.addConstraint(Sketcher.Constraint("Coincident", 40, 2, 41, 1))
sketch2.addConstraint(Sketcher.Constraint("Coincident", 41, 2, 42, 1))
sketch2.addConstraint(Sketcher.Constraint("Coincident", 42, 2, 43, 1))
sketch2.addConstraint(Sketcher.Constraint("Coincident", 43, 2, 44, 1))
sketch2.addConstraint(Sketcher.Constraint("Tangent", 44, 2, 45, 1))
sketch2.addConstraint(Sketcher.Constraint("Tangent", 45, 2, 46, 1))
sketch2.addConstraint(Sketcher.Constraint("Coincident", 46, 2, 47, 1))
sketch2.addConstraint(Sketcher.Constraint("Coincident", 47, 2, 48, 1))
sketch2.addConstraint(Sketcher.Constraint("Coincident", 48, 2, 49, 1))
sketch2.addConstraint(Sketcher.Constraint("Coincident", 49, 2, 50, 1))
sketch2.addConstraint(Sketcher.Constraint("Coincident", 50, 2, 51, 1))
sketch2.addConstraint(Sketcher.Constraint("Coincident", 51, 2, 52, 1))
sketch2.addConstraint(Sketcher.Constraint("Coincident", 52, 2, 53, 1))
sketch2.addConstraint(Sketcher.Constraint("Coincident", 53, 2, 54, 1))
sketch2.addConstraint(Sketcher.Constraint("Coincident", 54, 2, 55, 1))
sketch2.addConstraint(Sketcher.Constraint("Coincident", 55, 2, 0, 1))
sketch2.addConstraint(Sketcher.Constraint("Horizontal", 0))
sketch2.addConstraint(Sketcher.Constraint("Vertical", 2))
sketch2.addConstraint(Sketcher.Constraint("Horizontal", 4))
sketch2.addConstraint(Sketcher.Constraint("Vertical", 6))
sketch2.addConstraint(Sketcher.Constraint("Horizontal", 7))
sketch2.addConstraint(Sketcher.Constraint("Vertical", 8))
sketch2.addConstraint(Sketcher.Constraint("Horizontal", 10))
sketch2.addConstraint(Sketcher.Constraint("Vertical", 12))
sketch2.addConstraint(Sketcher.Constraint("Horizontal", 13))
sketch2.addConstraint(Sketcher.Constraint("Vertical", 14))
sketch2.addConstraint(Sketcher.Constraint("Horizontal", 16))
sketch2.addConstraint(Sketcher.Constraint("Vertical", 18))
sketch2.addConstraint(Sketcher.Constraint("Horizontal", 20))
sketch2.addConstraint(Sketcher.Constraint("Vertical", 21))
sketch2.addConstraint(Sketcher.Constraint("Horizontal", 22))
sketch2.addConstraint(Sketcher.Constraint("Vertical", 24))
sketch2.addConstraint(Sketcher.Constraint("Horizontal", 26))
sketch2.addConstraint(Sketcher.Constraint("Vertical", 27))
sketch2.addConstraint(Sketcher.Constraint("Horizontal", 28))
sketch2.addConstraint(Sketcher.Constraint("Vertical", 30))
sketch2.addConstraint(Sketcher.Constraint("Horizontal", 32))
sketch2.addConstraint(Sketcher.Constraint("Vertical", 34))
sketch2.addConstraint(Sketcher.Constraint("Horizontal", 35))
sketch2.addConstraint(Sketcher.Constraint("Vertical", 36))
sketch2.addConstraint(Sketcher.Constraint("Horizontal", 38))
sketch2.addConstraint(Sketcher.Constraint("Vertical", 40))
sketch2.addConstraint(Sketcher.Constraint("Horizontal", 41))
sketch2.addConstraint(Sketcher.Constraint("Vertical", 42))
sketch2.addConstraint(Sketcher.Constraint("Horizontal", 44))
sketch2.addConstraint(Sketcher.Constraint("Vertical", 46))
sketch2.addConstraint(Sketcher.Constraint("Horizontal", 48))
sketch2.addConstraint(Sketcher.Constraint("Vertical", 49))
sketch2.addConstraint(Sketcher.Constraint("Horizontal", 50))
sketch2.addConstraint(Sketcher.Constraint("Vertical", 52))
sketch2.addConstraint(Sketcher.Constraint("Horizontal", 54))
sketch2.addConstraint(Sketcher.Constraint("Vertical", 55))
sketch2.addConstraint(Sketcher.Constraint("Coincident", 56, 3, -1, 1))
sketch2.addConstraint(Sketcher.Constraint("Equal", 1, 5))
sketch2.addConstraint(Sketcher.Constraint("Equal", 5, 15))
sketch2.addConstraint(Sketcher.Constraint("Equal", 3, 17))
sketch2.addConstraint(Sketcher.Constraint("Equal", 15, 19))
sketch2.addConstraint(Sketcher.Constraint("Equal", 19, 29))
sketch2.addConstraint(Sketcher.Constraint("Equal", 17, 31))
sketch2.addConstraint(Sketcher.Constraint("Equal", 29, 33))
sketch2.addConstraint(Sketcher.Constraint("Equal", 33, 43))
sketch2.addConstraint(Sketcher.Constraint("Equal", 31, 45))
sketch2.addConstraint(Sketcher.Constraint("Equal", 43, 47))
sketch2.addConstraint(Sketcher.Constraint("Symmetric", 1, 3, 29, 3, -1, 1))
sketch2.addConstraint(Sketcher.Constraint("Symmetric", 5, 3, 33, 3, -1, 1))
sketch2.addConstraint(Sketcher.Constraint("Symmetric", 15, 3, 43, 3, -1, 1))
sketch2.addConstraint(Sketcher.Constraint("Symmetric", 19, 3, 47, 3, -1, 1))
sketch2.addConstraint(Sketcher.Constraint("Symmetric", 7, 2, 35, 2, -1, 1))
sketch2.addConstraint(Sketcher.Constraint("Symmetric", 9, 2, 37, 2, -1, 1))
sketch2.addConstraint(Sketcher.Constraint("Symmetric", 11, 2, 39, 2, -1, 1))
sketch2.addConstraint(Sketcher.Constraint("Symmetric", 21, 2, 49, 2, -1, 1))
sketch2.addConstraint(Sketcher.Constraint("Symmetric", 23, 2, 51, 2, -1, 1))
sketch2.addConstraint(Sketcher.Constraint("Symmetric", 25, 2, 53, 2, -1, 1))
sketch2.addConstraint(Sketcher.Constraint("Symmetric", 5, 3, 15, 3, -2))
sketch2.addConstraint(Sketcher.Constraint("Symmetric", 1, 3, 19, 3, -2))
sketch2.addConstraint(Sketcher.Constraint("Symmetric", 8, 2, 11, 2, -2))
sketch2.addConstraint(Sketcher.Constraint("Symmetric", 26, 2, 49, 2, -2))
sketch2.addConstraint(Sketcher.Constraint("Perpendicular", 9, 11))
sketch2.addConstraint(Sketcher.Constraint("Parallel", 11, 23))
sketch2.addConstraint(Sketcher.Constraint("Perpendicular", 23, 25))
sketch2.addConstraint(Sketcher.Constraint("Parallel", 25, 37))
sketch2.addConstraint(Sketcher.Constraint("Perpendicular", 37, 39))
sketch2.addConstraint(Sketcher.Constraint("Parallel", 39, 51))
sketch2.addConstraint(Sketcher.Constraint("Perpendicular", 51, 53))
sketch2.addConstraint(Sketcher.Constraint("Horizontal", 19, 3, 1, 2))
sketch2.addConstraint(Sketcher.Constraint("Horizontal", 15, 3, 5, 2))
sketch2.addConstraint(Sketcher.Constraint("Horizontal", 7, 2, 12, 2))
sketch2.addConstraint(Sketcher.Constraint("Horizontal", 5, 2, 14, 2))
sketch2.addConstraint(Sketcher.Constraint("Horizontal", 1, 2, 18, 2))
sketch2.addConstraint(Sketcher.Constraint("Horizontal", 47, 3, 29, 2))
sketch2.addConstraint(Sketcher.Constraint("Horizontal", 43, 3, 33, 2))
sketch2.addConstraint(Sketcher.Constraint("Horizontal", 35, 2, 40, 2))
sketch2.addConstraint(Sketcher.Constraint("Horizontal", 33, 2, 42, 2))
sketch2.addConstraint(Sketcher.Constraint("Horizontal", 29, 2, 46, 2))
sketch2.addConstraint(Sketcher.Constraint("Horizontal", 24, 2, 51, 2))
sketch2.addConstraint(Sketcher.Constraint("Vertical", 47, 3, 0, 2))
sketch2.addConstraint(Sketcher.Constraint("Vertical", 43, 3, 4, 2))
sketch2.addConstraint(Sketcher.Constraint("Vertical", 33, 3, 15, 2))
sketch2.addConstraint(Sketcher.Constraint("Vertical", 29, 3, 19, 2))
sketch2.addConstraint(Sketcher.Constraint("Vertical", 22, 2, 25, 2))
sketch2.addConstraint(Sketcher.Constraint("Vertical", 19, 2, 28, 2))
sketch2.addConstraint(Sketcher.Constraint("Vertical", 15, 2, 32, 2))
sketch2.addConstraint(Sketcher.Constraint("Vertical", 4, 2, 43, 2))
sketch2.addConstraint(Sketcher.Constraint("Vertical", 0, 2, 47, 2))
sketch2.addConstraint(Sketcher.Constraint("Vertical", 49, 2, 54, 2))
sketch2.addConstraint(Sketcher.Constraint("Equal", 44, 2))
sketch2.addConstraint(Sketcher.Constraint("Equal", 48, 6))
sketch2.addConstraint(Sketcher.Constraint("Equal", 54, 8))
sketch2.addConstraint(Sketcher.Constraint("Equal", 41, 21))
sketch2.addConstraint(Sketcher.Constraint("Equal", 38, 24))
sketch2.addConstraint(Sketcher.Constraint("Equal", 11, 23))
sketch2.addConstraint(Sketcher.Constraint("Diameter", 56, 4.0))
sketch2.addConstraint(Sketcher.Constraint("Radius", 1, 0.500001))
sketch2.addConstraint(Sketcher.Constraint("Radius", 3, 1.500001))
sketch2.addConstraint(Sketcher.Constraint("DistanceX", 4, 2, 4, 1, 5.0))
sketch2.addConstraint(Sketcher.Constraint("DistanceX", 7, 1, 7, 2, 3.0))
sketch2.addConstraint(Sketcher.Constraint("DistanceY", -1, 1, 0, 2, 3.0))
sketch2.addConstraint(Sketcher.Constraint("DistanceY", -1, 1, 9, 2, 4.0))
sketch2.addConstraint(Sketcher.Constraint("Distance", 9, 3.553641))
sketch2.addConstraint(Sketcher.Constraint("DistanceX", 0, 1, 0, 2, 1.044564))
pad2 = body2.newObject("PartDesign::Pad", "Pad001")
pad2.Profile = sketch2
pad2.Length = 471.5

doc.recompute()
